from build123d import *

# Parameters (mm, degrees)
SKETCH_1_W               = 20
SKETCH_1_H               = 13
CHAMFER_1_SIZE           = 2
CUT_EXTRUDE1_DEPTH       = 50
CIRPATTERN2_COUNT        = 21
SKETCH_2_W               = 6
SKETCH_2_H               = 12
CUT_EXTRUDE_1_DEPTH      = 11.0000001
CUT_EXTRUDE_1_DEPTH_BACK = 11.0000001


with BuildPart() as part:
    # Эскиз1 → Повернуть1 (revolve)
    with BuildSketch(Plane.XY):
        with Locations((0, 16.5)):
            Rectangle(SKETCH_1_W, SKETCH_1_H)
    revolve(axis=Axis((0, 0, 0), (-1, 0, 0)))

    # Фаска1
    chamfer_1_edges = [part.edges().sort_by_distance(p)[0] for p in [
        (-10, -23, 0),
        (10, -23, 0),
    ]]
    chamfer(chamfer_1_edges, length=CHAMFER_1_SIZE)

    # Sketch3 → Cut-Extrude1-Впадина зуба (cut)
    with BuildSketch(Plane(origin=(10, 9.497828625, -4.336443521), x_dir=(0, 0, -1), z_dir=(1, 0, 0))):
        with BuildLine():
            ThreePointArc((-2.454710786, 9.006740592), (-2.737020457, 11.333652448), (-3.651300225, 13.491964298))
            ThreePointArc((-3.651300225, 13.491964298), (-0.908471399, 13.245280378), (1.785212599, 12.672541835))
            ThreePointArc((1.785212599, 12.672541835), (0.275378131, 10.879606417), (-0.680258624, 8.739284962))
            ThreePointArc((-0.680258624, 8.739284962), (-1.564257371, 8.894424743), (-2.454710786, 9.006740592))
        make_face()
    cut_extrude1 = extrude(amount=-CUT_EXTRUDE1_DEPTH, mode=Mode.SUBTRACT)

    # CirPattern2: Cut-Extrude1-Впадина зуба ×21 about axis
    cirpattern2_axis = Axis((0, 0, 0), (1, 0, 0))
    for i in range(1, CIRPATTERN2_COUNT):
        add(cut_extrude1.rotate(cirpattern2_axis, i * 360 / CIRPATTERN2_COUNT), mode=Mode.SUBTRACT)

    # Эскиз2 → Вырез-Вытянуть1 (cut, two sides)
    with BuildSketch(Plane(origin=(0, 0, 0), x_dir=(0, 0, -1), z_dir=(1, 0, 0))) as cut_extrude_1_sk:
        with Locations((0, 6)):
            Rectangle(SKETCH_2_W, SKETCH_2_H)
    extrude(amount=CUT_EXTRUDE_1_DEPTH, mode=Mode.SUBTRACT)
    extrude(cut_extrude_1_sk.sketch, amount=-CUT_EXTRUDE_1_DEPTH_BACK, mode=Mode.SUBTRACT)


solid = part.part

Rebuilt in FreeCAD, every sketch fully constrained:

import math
import FreeCAD as App
import Part
import Sketcher
from FreeCAD import Vector
Q = App.Units.Quantity


def edges_at(feature, points):
    """Names of the edges that pass closest to the given points."""
    edges = feature.Shape.Edges
    near = lambda p: min(range(len(edges)), key=lambda i: edges[i].distToShape(Part.Vertex(*p))[0])
    return sorted({f"Edge{near(p) + 1}" for p in points})

doc = App.newDocument("Part")
params = doc.addObject("Spreadsheet::Sheet", "Params")
for row, (alias, value) in enumerate([
    ("sketch1_width", "20 mm"),
    ("sketch1_height", "13 mm"),
    ("revolution_angle", "360 deg"),
    ("chamfer_size", "2 mm"),
    ("sketch2_radius", "23 mm"),
    ("sketch2_radius2", "8.4 mm"),
    ("sketch2_radius3", "18.6 mm"),
    ("pocket1_length", "50 mm"),
    ("sketch3_width", "12 mm"),
    ("sketch3_height", "6 mm"),
], start=1):
    params.set(f"A{row}", alias)
    params.set(f"B{row}", "=" + value)
    params.setAlias(f"B{row}", alias)

body = doc.addObject("PartDesign::Body", "Body")

# Sketch on XY plane
sketch1 = doc.addObject("Sketcher::SketchObject", "Sketch")
body.addObject(sketch1)
sketch1.AttachmentSupport = (doc.XY_Plane, [""])
sketch1.MapMode = "FlatFace"
sketch1.addGeometry([
    Part.LineSegment(Vector(-10, 23, 0), Vector(-10, 10, 0)),
    Part.LineSegment(Vector(-10, 10, 0), Vector(10, 10, 0)),
    Part.LineSegment(Vector(10, 10, 0), Vector(10, 23, 0)),
    Part.LineSegment(Vector(10, 23, 0), Vector(-10, 23, 0)),
], False)
sketch1.addConstraint([
    Sketcher.Constraint("Coincident", 0, 2, 1, 1),
    Sketcher.Constraint("Coincident", 1, 2, 2, 1),
    Sketcher.Constraint("Coincident", 2, 2, 3, 1),
    Sketcher.Constraint("Coincident", 3, 2, 0, 1),
    Sketcher.Constraint("Vertical", 0),
    Sketcher.Constraint("Horizontal", 1),
    Sketcher.Constraint("Vertical", 2),
    Sketcher.Constraint("Horizontal", 3),
    Sketcher.Constraint("DistanceX", 1, 1, 1, 2, Q("20 mm")),
    Sketcher.Constraint("DistanceY", 0, 2, 0, 1, Q("13 mm")),
    Sketcher.Constraint("DistanceX", 0, 2, -1, 1, Q("10 mm")),
    Sketcher.Constraint("DistanceY", -1, 1, 0, 2, Q("10 mm")),
])
sketch1.setExpression("Constraints[8]", "Params.sketch1_width")
sketch1.setExpression("Constraints[9]", "Params.sketch1_height")
revolution = doc.addObject("PartDesign::Revolution", "Revolution")
body.addObject(revolution)
revolution.Profile = sketch1
revolution.ReferenceAxis = (sketch1, ["H_Axis"])
revolution.setExpression("Angle", "Params.revolution_angle")
doc.recompute()

chamfer = doc.addObject("PartDesign::Chamfer", "Chamfer")
body.addObject(chamfer)
chamfer.Base = (revolution, edges_at(revolution, [(-10, -23, 0), (10, -23, 0)]))
chamfer.setExpression("Size", "Params.chamfer_size")

# Sketch on YZ plane
sketch2 = doc.addObject("Sketcher::SketchObject", "Sketch001")
body.addObject(sketch2)
sketch2.AttachmentSupport = (doc.YZ_Plane, [""])
sketch2.MapMode = "FlatFace"
sketch2.AttachmentOffset = App.Placement(Vector(0, 0, 10), App.Rotation())
sketch2.addGeometry([
    Part.ArcOfCircle(Part.Circle(Vector(18.7, 6.5, 0), Vector(0, 0, 1), 8.4), math.radians(-91), math.radians(-59)),
    Part.ArcOfCircle(Part.Circle(Vector(0, 0, 0), Vector(0, 0, 1), 18.6), math.radians(-11.34), math.radians(-5.81)),
    Part.ArcOfCircle(Part.Circle(Vector(15.9, -11.7, 0), Vector(0, 0, 1), 8.4), math.radians(42), math.radians(74)),
    Part.ArcOfCircle(Part.Circle(Vector(0, 0, 0), Vector(0, 0, 1), 23), math.radians(-15.44), math.radians(-1.71)),
], False)
sketch2.addConstraint([
    Sketcher.Constraint("Coincident", 0, 1, 1, 2),
    Sketcher.Constraint("Coincident", 1, 1, 2, 2),
    Sketcher.Constraint("Coincident", 2, 1, 3, 1),
    Sketcher.Constraint("Coincident", 3, 2, 0, 2),
    Sketcher.Constraint("Coincident", 1, 3, -1, 1),
    Sketcher.Constraint("Coincident", 3, 3, -1, 1),
    Sketcher.Constraint("Equal", 0, 2),
    Sketcher.Constraint("Radius", 3, Q("23 mm")),
    Sketcher.Constraint("Radius", 0, Q("8.4 mm")),
    Sketcher.Constraint("Radius", 1, Q("18.6 mm")),
    Sketcher.Constraint("DistanceX", 0, 1, 2, 1, Q("3.665801 mm")),
    Sketcher.Constraint("DistanceY", 2, 3, 2, 1, Q("5.607501 mm")),
    Sketcher.Constraint("DistanceX", -1, 1, 0, 3, Q("18.66622 mm")),
    Sketcher.Constraint("DistanceY", -1, 1, 0, 3, Q("6.516712 mm")),
])
sketch2.setExpression("Constraints[7]", "Params.sketch2_radius")
sketch2.setExpression("Constraints[8]", "Params.sketch2_radius2")
sketch2.setExpression("Constraints[9]", "Params.sketch2_radius3")
pocket1 = doc.addObject("PartDesign::Pocket", "Pocket")
body.addObject(pocket1)
pocket1.Profile = sketch2
pocket1.setExpression("Length", "Params.pocket1_length")
doc.recompute()

polarpattern = doc.addObject("PartDesign::PolarPattern", "PolarPattern")
body.addObject(polarpattern)
polarpattern.Originals = [pocket1]
polarpattern.Axis = (doc.X_Axis, [""])
polarpattern.Angle = 360
polarpattern.Occurrences = 21
body.Tip = polarpattern

# Sketch on YZ plane
sketch3 = doc.addObject("Sketcher::SketchObject", "Sketch002")
body.addObject(sketch3)
sketch3.AttachmentSupport = (doc.YZ_Plane, [""])
sketch3.MapMode = "FlatFace"
sketch3.addGeometry([
    Part.LineSegment(Vector(12, 3, 0), Vector(0, 3, 0)),
    Part.LineSegment(Vector(0, 3, 0), Vector(0, -3, 0)),
    Part.LineSegment(Vector(0, -3, 0), Vector(12, -3, 0)),
    Part.LineSegment(Vector(12, -3, 0), Vector(12, 3, 0)),
], False)
sketch3.addConstraint([
    Sketcher.Constraint("Coincident", 0, 2, 1, 1),
    Sketcher.Constraint("Coincident", 1, 2, 2, 1),
    Sketcher.Constraint("Coincident", 2, 2, 3, 1),
    Sketcher.Constraint("Coincident", 3, 2, 0, 1),
    Sketcher.Constraint("Horizontal", 0),
    Sketcher.Constraint("Vertical", 1),
    Sketcher.Constraint("Horizontal", 2),
    Sketcher.Constraint("Vertical", 3),
    Sketcher.Constraint("Symmetric", 0, 2, 1, 2, -1, 1),
    Sketcher.Constraint("DistanceX", 0, 2, 0, 1, Q("12 mm")),
    Sketcher.Constraint("DistanceY", 1, 2, 1, 1, Q("6 mm")),
])
sketch3.setExpression("Constraints[9]", "Params.sketch3_width")
sketch3.setExpression("Constraints[10]", "Params.sketch3_height")
pocket2 = doc.addObject("PartDesign::Pocket", "Pocket001")
body.addObject(pocket2)
pocket2.Profile = sketch3
pocket2.Type = "ThroughAll"
pocket2.Midplane = True

doc.recompute()
